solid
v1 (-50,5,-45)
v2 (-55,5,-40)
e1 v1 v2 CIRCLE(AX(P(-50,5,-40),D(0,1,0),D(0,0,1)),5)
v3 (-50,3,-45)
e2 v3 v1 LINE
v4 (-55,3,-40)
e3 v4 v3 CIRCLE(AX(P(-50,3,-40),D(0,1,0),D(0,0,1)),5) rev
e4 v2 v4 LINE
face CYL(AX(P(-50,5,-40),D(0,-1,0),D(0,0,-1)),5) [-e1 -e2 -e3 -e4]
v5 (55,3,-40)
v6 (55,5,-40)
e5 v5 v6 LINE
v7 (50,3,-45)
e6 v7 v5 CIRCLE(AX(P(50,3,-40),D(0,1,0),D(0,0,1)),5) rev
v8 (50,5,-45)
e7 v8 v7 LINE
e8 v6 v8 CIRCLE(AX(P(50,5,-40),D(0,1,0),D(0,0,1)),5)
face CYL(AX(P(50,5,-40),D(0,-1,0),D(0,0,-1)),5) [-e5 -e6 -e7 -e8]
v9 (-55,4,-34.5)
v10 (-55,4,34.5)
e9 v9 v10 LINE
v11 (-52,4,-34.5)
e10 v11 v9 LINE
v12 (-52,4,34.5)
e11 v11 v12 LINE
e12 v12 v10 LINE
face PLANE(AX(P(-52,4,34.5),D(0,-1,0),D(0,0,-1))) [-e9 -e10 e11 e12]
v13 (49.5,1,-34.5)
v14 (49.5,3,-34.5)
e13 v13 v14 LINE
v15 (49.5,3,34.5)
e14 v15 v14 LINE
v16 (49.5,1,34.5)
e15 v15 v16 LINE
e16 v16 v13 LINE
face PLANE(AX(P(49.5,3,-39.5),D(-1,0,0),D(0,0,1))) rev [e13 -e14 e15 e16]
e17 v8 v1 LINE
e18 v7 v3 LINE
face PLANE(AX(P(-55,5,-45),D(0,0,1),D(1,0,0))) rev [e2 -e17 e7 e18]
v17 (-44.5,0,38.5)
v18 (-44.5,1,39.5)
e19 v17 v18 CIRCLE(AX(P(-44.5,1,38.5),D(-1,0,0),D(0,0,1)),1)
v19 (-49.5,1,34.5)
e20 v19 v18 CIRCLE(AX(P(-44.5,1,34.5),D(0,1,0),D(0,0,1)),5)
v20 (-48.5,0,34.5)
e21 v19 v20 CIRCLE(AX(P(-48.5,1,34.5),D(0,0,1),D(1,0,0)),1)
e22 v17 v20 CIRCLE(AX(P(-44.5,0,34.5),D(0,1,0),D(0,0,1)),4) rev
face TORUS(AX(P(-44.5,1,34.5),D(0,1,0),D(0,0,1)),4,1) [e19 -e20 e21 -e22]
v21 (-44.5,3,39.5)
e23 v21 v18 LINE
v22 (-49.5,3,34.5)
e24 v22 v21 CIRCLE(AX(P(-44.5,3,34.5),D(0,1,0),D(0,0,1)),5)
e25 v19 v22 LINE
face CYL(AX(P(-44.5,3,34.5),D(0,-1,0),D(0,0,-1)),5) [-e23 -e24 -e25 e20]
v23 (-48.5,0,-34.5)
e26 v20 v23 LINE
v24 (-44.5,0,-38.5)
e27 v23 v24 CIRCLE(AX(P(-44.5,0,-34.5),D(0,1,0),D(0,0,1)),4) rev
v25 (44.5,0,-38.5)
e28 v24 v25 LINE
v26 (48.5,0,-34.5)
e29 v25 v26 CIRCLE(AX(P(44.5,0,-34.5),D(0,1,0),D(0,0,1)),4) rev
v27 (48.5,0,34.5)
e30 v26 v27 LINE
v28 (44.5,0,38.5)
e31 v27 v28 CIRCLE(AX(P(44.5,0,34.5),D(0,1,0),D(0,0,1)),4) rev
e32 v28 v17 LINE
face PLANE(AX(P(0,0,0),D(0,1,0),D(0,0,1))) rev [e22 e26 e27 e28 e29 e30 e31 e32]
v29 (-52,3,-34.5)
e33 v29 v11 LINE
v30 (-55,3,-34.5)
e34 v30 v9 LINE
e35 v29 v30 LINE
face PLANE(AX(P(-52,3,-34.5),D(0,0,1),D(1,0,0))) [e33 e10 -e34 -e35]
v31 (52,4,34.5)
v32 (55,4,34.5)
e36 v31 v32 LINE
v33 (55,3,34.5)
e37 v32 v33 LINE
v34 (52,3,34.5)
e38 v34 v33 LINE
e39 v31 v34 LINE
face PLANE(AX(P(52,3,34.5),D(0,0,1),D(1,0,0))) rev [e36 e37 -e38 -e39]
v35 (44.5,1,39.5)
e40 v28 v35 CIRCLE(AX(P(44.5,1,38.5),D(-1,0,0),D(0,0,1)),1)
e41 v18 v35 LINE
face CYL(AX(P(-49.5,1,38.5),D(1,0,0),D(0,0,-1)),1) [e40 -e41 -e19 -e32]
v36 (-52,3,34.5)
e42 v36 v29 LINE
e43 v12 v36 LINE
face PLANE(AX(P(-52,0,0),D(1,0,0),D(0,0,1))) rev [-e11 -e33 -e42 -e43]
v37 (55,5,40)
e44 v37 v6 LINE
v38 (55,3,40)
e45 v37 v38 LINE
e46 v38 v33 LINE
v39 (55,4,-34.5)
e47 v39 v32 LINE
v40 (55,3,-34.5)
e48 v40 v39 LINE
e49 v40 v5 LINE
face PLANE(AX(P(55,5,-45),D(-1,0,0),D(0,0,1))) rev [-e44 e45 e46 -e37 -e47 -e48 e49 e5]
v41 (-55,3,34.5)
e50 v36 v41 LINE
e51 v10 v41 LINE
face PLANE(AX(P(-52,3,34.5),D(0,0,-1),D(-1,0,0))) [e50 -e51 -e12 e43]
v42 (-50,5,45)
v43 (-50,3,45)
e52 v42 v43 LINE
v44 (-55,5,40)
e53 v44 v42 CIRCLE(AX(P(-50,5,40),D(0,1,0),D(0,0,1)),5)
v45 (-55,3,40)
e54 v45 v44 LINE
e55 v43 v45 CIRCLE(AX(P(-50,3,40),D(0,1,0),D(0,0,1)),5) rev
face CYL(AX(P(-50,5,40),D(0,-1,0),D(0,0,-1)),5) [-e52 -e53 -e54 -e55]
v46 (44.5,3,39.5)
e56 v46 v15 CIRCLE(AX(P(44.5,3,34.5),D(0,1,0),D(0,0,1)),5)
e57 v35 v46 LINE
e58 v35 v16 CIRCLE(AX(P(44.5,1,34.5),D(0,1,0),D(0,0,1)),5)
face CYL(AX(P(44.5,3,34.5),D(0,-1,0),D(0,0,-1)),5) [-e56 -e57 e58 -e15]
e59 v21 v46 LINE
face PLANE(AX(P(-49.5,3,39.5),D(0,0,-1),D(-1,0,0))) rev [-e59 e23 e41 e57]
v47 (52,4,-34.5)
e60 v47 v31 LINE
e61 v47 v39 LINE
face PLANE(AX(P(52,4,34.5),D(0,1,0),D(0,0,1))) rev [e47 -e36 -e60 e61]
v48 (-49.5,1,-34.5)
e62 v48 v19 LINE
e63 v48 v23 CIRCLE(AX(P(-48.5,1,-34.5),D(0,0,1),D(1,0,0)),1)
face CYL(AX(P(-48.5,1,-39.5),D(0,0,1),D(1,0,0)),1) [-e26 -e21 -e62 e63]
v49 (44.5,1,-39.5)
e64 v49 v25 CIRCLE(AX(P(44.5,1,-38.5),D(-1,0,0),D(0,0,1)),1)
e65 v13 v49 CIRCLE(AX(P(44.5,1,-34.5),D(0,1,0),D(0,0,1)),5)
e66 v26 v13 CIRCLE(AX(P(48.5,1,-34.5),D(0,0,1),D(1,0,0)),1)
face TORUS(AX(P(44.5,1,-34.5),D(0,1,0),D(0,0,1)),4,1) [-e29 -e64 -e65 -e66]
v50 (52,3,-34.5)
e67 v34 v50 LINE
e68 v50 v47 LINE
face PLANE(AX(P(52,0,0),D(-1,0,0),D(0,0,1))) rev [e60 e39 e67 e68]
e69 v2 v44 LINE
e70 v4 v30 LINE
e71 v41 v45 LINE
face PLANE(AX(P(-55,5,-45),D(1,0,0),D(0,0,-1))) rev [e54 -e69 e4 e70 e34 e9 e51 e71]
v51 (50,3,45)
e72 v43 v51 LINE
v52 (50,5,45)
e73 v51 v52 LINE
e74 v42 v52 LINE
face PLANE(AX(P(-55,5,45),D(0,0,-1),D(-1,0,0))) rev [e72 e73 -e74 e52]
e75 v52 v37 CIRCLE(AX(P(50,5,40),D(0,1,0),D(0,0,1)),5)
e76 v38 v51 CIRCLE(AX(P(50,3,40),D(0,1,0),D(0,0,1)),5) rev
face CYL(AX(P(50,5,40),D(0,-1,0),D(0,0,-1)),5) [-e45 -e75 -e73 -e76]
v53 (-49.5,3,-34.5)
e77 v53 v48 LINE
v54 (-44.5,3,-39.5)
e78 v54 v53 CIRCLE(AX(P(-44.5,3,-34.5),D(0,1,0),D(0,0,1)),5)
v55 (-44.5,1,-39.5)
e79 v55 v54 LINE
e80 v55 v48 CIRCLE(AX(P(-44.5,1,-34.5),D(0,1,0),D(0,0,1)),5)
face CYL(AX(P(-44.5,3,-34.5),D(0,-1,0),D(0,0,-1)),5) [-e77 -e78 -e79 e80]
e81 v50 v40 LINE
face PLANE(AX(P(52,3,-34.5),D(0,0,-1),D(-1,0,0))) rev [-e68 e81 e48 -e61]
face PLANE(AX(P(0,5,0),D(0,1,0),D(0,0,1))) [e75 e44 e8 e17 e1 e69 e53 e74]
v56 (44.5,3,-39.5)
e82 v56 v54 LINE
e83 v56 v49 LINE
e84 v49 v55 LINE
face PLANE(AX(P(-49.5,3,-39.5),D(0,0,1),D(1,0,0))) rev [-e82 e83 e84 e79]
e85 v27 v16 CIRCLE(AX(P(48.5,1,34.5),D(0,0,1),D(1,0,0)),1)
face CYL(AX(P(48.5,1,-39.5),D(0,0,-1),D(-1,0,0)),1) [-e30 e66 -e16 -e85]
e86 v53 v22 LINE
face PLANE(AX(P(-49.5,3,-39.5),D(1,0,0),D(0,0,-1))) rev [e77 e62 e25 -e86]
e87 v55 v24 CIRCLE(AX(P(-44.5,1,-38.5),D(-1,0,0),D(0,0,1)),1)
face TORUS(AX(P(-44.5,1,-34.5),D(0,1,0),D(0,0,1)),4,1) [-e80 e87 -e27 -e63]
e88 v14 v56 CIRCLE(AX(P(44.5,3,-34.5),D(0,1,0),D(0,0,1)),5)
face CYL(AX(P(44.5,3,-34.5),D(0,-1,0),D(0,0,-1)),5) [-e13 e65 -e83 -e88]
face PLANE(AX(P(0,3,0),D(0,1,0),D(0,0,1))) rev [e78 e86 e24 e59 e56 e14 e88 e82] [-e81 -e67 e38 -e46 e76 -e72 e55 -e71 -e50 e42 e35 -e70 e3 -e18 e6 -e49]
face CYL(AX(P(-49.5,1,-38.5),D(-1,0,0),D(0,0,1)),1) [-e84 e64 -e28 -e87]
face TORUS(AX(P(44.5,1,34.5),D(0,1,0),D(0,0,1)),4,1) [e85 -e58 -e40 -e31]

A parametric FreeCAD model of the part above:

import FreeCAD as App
import Part
import Sketcher

V = App.Vector


def edges_at(feature, points):
    """Names of the edges that pass closest to the given points."""
    edges = feature.Shape.Edges
    near = lambda p: min(range(len(edges)), key=lambda i: edges[i].distToShape(Part.Vertex(*p))[0])
    return sorted({f"Edge{near(p) + 1}" for p in points})

doc = App.newDocument("Part")
body = doc.addObject("PartDesign::Body", "Body")

sketch1 = body.newObject("Sketcher::SketchObject", "Sketch")
sketch1.AttachmentSupport = (doc.getObject("XZ_Plane"), [""])
sketch1.MapMode = "FlatFace"
sketch1.addGeometry(Part.LineSegment(V(-49.5, -39.5, 0), V(-49.5, 39.5, 0)), False)
sketch1.addGeometry(Part.LineSegment(V(-49.5, 39.5, 0), V(49.5, 39.5, 0)), False)
sketch1.addGeometry(Part.LineSegment(V(49.5, 39.5, 0), V(49.5, -39.5, 0)), False)
sketch1.addGeometry(Part.LineSegment(V(49.5, -39.5, 0), V(-49.5, -39.5, 0)), False)
sketch1.addConstraint(Sketcher.Constraint("Coincident", 0, 2, 1, 1))
sketch1.addConstraint(Sketcher.Constraint("Coincident", 1, 2, 2, 1))
sketch1.addConstraint(Sketcher.Constraint("Coincident", 2, 2, 3, 1))
sketch1.addConstraint(Sketcher.Constraint("Coincident", 3, 2, 0, 1))
sketch1.addConstraint(Sketcher.Constraint("Vertical", 0))
sketch1.addConstraint(Sketcher.Constraint("Horizontal", 1))
sketch1.addConstraint(Sketcher.Constraint("Vertical", 2))
sketch1.addConstraint(Sketcher.Constraint("Horizontal", 3))
sketch1.addConstraint(Sketcher.Constraint("Symmetric", 0, 2, 2, 2, -1, 1))
sketch1.addConstraint(Sketcher.Constraint("DistanceX", 1, 1, 1, 2, 99.0))
sketch1.addConstraint(Sketcher.Constraint("DistanceY", 0, 1, 0, 2, 79.0))
pad1 = body.newObject("PartDesign::Pad", "Pad")
pad1.Profile = sketch1
pad1.Length = 3
pad1.Reversed = True
doc.recompute()

fillet = body.newObject("PartDesign::Fillet", "Fillet")
fillet.Base = (pad1, edges_at(pad1, [
    (49.5, 1.5, 39.5),
    (-49.5, 1.5, 39.5),
    (-49.5, 1.5, -39.5),
    (49.5, 1.5, -39.5),
]))
fillet.Radius = 5
doc.recompute()

fillet2 = body.newObject("PartDesign::Fillet", "Fillet001")
fillet2.Base = (fillet, edges_at(fillet, [
    (0, 0, -39.5),
    (49.5, 0, 0),
    (0, 0, 39.5),
    (-49.5, 0, 0),
    (48.036, 0, 38.036),
    (-48.036, 0, 38.036),
    (-48.036, 0, -38.036),
    (48.036, 0, -38.036),
]))
fillet2.Radius = 1

sketch2 = body.newObject("Sketcher::SketchObject", "Sketch001")
sketch2.AttachmentSupport = (doc.getObject("XZ_Plane"), [""])
sketch2.MapMode = "FlatFace"
sketch2.AttachmentOffset = App.Placement(V(0, 0, -3), App.Rotation())
sketch2.addGeometry(Part.LineSegment(V(-55, -45, 0), V(-55, 45, 0)), False)
sketch2.addGeometry(Part.LineSegment(V(-55, 45, 0), V(55, 45, 0)), False)
sketch2.addGeometry(Part.LineSegment(V(55, 45, 0), V(55, -45, 0)), False)
sketch2.addGeometry(Part.LineSegment(V(55, -45, 0), V(-55, -45, 0)), False)
sketch2.addConstraint(Sketcher.Constraint("Coincident", 0, 2, 1, 1))
sketch2.addConstraint(Sketcher.Constraint("Coincident", 1, 2, 2, 1))
sketch2.addConstraint(Sketcher.Constraint("Coincident", 2, 2, 3, 1))
sketch2.addConstraint(Sketcher.Constraint("Coincident", 3, 2, 0, 1))
sketch2.addConstraint(Sketcher.Constraint("Vertical", 0))
sketch2.addConstraint(Sketcher.Constraint("Horizontal", 1))
sketch2.addConstraint(Sketcher.Constraint("Vertical", 2))
sketch2.addConstraint(Sketcher.Constraint("Horizontal", 3))
sketch2.addConstraint(Sketcher.Constraint("Symmetric", 0, 2, 2, 2, -1, 1))
sketch2.addConstraint(Sketcher.Constraint("DistanceX", 1, 1, 1, 2, 110.0))
sketch2.addConstraint(Sketcher.Constraint("DistanceY", 0, 1, 0, 2, 90.0))
pad2 = body.newObject("PartDesign::Pad", "Pad001")
pad2.Profile = sketch2
pad2.Length = 2
pad2.Reversed = True
doc.recompute()

fillet3 = body.newObject("PartDesign::Fillet", "Fillet002")
fillet3.Base = (pad2, edges_at(pad2, [
    (55, 4, 45),
    (55, 4, -45),
    (-55, 4, -45),
    (-55, 4, 45),
]))
fillet3.Radius = 5

sketch3 = body.newObject("Sketcher::SketchObject", "Sketch002")
sketch3.AttachmentSupport = (doc.getObject("YZ_Plane"), [""])
sketch3.MapMode = "FlatFace"
sketch3.AttachmentOffset = App.Placement(V(0, 0, 55), App.Rotation())
sketch3.addGeometry(Part.LineSegment(V(4, 34.5, 0), V(3, 34.5, 0)), False)
sketch3.addGeometry(Part.LineSegment(V(3, 34.5, 0), V(3, -34.5, 0)), False)
sketch3.addGeometry(Part.LineSegment(V(3, -34.5, 0), V(4, -34.5, 0)), False)
sketch3.addGeometry(Part.LineSegment(V(4, -34.5, 0), V(4, 34.5, 0)), False)
sketch3.addConstraint(Sketcher.Constraint("Coincident", 0, 2, 1, 1))
sketch3.addConstraint(Sketcher.Constraint("Coincident", 1, 2, 2, 1))
sketch3.addConstraint(Sketcher.Constraint("Coincident", 2, 2, 3, 1))
sketch3.addConstraint(Sketcher.Constraint("Coincident", 3, 2, 0, 1))
sketch3.addConstraint(Sketcher.Constraint("Horizontal", 0))
sketch3.addConstraint(Sketcher.Constraint("Vertical", 1))
sketch3.addConstraint(Sketcher.Constraint("Horizontal", 2))
sketch3.addConstraint(Sketcher.Constraint("Vertical", 3))
sketch3.addConstraint(Sketcher.Constraint("DistanceX", 0, 2, 0, 1, 1.0))
sketch3.addConstraint(Sketcher.Constraint("DistanceY", 1, 2, 1, 1, 69.0))
sketch3.addConstraint(Sketcher.Constraint("DistanceX", -1, 1, 0, 2, 3.0))
sketch3.addConstraint(Sketcher.Constraint("DistanceY", -1, 1, 0, 2, 34.5))
pocket1 = body.newObject("PartDesign::Pocket", "Pocket")
pocket1.Profile = sketch3
pocket1.Length = 3
doc.recompute()

mirrored = body.newObject("PartDesign::Mirrored", "Mirrored")
mirrored.Originals = [pocket1]
mirrored.MirrorPlane = (doc.getObject("YZ_Plane"), [""])
body.Tip = mirrored

doc.recompute()
